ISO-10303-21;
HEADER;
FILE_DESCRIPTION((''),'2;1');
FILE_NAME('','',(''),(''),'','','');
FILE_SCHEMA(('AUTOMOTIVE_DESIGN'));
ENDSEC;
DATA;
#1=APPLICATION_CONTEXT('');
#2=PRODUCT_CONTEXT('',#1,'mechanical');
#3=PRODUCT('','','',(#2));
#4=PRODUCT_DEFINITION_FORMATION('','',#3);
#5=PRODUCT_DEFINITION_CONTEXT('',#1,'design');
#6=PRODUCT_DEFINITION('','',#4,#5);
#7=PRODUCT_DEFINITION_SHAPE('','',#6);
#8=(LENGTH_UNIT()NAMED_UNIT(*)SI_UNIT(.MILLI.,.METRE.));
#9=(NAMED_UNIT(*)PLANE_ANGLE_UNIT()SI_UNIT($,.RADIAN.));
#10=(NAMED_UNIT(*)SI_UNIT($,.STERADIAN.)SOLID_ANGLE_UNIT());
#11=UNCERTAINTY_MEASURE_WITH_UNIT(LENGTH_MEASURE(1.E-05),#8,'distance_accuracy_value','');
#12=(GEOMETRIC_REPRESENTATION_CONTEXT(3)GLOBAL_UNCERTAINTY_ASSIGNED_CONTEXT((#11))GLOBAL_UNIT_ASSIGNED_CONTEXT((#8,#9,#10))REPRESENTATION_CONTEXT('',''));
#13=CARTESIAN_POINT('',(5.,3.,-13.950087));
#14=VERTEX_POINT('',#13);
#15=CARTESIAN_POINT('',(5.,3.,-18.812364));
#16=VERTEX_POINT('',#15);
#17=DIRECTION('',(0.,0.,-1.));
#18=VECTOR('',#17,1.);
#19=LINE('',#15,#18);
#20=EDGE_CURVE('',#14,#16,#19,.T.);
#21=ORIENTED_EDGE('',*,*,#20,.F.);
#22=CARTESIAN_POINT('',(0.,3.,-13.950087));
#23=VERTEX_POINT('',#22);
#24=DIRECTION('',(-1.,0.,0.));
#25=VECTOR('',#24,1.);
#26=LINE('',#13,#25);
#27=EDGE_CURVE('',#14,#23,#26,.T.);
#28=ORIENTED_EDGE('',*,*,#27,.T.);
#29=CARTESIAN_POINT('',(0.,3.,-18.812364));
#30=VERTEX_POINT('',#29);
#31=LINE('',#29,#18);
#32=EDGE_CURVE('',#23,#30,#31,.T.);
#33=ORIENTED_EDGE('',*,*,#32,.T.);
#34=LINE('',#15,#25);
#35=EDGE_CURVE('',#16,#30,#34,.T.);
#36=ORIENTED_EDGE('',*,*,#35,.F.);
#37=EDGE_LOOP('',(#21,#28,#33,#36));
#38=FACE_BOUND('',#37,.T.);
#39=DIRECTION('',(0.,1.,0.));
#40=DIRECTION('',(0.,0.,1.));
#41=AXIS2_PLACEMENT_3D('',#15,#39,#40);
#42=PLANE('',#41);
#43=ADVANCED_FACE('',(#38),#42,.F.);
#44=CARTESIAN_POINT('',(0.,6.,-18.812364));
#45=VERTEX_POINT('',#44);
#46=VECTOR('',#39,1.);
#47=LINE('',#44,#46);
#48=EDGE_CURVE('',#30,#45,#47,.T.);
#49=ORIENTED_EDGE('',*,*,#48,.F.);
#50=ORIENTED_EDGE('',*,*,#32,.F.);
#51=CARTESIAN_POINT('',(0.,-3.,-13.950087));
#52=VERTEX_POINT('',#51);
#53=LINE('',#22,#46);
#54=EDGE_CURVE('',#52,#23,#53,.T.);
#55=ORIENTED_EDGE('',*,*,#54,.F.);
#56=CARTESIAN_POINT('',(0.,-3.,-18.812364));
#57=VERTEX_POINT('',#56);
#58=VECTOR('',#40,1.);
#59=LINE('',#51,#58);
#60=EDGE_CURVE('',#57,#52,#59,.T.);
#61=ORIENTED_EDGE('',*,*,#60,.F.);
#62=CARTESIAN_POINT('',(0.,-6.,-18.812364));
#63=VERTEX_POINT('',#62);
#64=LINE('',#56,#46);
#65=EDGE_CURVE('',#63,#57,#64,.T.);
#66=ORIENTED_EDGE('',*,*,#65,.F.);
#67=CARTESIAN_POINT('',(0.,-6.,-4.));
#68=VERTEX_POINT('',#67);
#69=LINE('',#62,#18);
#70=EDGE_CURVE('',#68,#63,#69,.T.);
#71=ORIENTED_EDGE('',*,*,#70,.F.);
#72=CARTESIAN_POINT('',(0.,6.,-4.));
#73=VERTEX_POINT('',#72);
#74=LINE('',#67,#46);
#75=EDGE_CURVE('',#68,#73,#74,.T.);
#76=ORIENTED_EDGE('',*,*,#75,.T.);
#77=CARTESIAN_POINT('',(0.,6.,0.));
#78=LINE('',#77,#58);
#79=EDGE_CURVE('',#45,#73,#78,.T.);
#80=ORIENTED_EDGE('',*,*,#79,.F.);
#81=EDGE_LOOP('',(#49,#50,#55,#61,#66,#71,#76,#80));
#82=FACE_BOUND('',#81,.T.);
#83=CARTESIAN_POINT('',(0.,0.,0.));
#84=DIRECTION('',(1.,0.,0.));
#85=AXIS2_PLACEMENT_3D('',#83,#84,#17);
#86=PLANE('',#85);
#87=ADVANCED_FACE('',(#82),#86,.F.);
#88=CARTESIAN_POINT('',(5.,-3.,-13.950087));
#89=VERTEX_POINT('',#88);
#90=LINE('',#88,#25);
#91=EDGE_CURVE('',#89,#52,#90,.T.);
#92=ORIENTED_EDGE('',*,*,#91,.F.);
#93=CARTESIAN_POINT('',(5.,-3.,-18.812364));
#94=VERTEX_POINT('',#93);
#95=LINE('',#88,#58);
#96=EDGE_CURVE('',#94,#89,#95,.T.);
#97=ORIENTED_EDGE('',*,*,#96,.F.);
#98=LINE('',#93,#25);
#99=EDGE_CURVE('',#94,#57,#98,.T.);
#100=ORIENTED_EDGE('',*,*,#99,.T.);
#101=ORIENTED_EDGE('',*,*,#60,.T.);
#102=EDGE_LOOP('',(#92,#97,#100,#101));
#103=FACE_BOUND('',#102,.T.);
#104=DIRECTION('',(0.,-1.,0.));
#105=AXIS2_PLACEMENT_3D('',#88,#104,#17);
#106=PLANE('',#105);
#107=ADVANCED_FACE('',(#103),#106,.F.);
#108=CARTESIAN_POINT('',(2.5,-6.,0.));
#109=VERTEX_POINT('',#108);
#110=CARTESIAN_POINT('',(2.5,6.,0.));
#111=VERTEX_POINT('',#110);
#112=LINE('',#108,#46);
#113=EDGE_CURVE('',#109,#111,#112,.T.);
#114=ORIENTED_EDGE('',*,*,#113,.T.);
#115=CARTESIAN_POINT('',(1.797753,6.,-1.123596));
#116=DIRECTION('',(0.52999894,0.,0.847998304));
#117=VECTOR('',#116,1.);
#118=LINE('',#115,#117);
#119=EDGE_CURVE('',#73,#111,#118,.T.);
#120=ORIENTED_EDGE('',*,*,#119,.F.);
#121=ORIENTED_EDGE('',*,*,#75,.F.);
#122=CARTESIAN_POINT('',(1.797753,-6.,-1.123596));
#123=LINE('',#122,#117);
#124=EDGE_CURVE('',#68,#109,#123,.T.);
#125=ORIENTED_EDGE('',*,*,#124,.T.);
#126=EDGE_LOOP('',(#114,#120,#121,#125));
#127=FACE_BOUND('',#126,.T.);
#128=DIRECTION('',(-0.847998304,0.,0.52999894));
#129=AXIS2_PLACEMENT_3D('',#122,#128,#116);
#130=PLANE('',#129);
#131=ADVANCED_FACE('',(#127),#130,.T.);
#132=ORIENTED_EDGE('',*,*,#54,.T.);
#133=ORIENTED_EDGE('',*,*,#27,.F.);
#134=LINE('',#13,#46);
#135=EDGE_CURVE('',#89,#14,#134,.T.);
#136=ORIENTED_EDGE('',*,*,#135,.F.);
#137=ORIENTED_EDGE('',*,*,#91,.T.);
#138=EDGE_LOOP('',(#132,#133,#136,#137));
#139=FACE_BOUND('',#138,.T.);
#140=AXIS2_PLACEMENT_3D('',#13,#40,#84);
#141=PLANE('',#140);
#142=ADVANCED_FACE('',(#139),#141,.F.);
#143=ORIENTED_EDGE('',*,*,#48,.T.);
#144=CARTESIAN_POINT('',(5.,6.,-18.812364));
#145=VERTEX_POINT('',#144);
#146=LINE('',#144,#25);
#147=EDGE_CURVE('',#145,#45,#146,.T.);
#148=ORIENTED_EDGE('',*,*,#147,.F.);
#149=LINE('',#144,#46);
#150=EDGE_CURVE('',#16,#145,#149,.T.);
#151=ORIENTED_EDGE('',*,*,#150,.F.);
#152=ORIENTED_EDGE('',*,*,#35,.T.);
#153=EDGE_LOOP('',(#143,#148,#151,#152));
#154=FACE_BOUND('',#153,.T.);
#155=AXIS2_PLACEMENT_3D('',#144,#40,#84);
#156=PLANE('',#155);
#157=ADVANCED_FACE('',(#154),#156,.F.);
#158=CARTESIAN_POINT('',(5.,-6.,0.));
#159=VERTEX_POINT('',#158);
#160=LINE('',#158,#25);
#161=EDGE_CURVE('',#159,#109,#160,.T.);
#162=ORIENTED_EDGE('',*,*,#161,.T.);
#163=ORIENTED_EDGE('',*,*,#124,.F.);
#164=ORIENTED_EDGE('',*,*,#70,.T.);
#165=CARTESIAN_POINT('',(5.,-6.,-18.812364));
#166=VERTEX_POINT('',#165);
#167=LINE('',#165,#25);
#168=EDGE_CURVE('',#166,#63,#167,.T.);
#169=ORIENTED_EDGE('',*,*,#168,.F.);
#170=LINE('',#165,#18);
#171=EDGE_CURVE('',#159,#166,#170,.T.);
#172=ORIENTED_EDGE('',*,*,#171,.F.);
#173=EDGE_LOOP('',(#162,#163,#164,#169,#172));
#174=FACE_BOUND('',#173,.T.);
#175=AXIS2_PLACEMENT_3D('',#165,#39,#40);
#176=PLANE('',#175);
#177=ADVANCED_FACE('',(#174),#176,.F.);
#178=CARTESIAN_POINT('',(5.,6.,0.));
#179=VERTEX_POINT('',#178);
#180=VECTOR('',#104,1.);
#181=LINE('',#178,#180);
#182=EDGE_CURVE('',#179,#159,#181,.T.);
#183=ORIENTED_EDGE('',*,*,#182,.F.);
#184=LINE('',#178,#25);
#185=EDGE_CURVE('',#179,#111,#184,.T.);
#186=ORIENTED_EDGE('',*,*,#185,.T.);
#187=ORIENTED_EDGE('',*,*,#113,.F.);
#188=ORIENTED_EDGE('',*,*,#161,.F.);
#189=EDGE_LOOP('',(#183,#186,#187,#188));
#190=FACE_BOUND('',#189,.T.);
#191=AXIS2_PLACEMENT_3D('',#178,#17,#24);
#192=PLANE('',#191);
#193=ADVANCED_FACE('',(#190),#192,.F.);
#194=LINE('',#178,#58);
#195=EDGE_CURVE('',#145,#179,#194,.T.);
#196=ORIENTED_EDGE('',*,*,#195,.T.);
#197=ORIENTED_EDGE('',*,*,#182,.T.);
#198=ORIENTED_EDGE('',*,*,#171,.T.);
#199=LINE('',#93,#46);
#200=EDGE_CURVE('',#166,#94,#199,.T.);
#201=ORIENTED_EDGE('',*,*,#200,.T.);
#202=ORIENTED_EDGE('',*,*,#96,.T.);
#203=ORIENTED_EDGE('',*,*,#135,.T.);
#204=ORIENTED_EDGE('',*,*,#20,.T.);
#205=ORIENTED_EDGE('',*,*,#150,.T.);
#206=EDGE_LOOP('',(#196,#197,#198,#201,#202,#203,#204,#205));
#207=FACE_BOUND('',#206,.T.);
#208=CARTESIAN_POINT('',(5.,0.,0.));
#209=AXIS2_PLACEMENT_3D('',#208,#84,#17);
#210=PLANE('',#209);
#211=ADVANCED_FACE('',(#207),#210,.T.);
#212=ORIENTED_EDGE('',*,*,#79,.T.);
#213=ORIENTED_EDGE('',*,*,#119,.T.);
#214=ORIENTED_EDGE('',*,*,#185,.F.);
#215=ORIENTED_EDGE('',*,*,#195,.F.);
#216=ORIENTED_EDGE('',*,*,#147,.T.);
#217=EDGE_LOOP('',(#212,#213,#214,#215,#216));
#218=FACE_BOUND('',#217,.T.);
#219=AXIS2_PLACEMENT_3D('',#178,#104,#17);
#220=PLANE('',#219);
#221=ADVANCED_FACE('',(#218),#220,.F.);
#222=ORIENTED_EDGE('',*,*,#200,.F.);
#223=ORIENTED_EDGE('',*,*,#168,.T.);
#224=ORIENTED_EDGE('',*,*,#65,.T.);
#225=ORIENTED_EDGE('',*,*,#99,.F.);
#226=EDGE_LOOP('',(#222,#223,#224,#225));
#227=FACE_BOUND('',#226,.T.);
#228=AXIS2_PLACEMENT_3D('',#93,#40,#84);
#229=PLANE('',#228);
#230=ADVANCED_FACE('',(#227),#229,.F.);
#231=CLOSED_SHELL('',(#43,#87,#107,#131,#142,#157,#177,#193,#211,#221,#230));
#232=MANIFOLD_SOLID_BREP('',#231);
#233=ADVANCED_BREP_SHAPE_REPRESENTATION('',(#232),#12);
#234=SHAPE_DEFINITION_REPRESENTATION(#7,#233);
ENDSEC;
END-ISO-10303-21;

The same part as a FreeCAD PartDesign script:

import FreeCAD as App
import Part
import Sketcher
from FreeCAD import Vector

doc = App.newDocument("Part")
body = doc.addObject("PartDesign::Body", "Body")

# Sketch on YZ plane
sketch1 = doc.addObject("Sketcher::SketchObject", "Sketch")
body.addObject(sketch1)
sketch1.AttachmentSupport = (doc.YZ_Plane, [""])
sketch1.MapMode = "FlatFace"
sketch1.addGeometry([
    Part.LineSegment(Vector(6, 0, 0), Vector(-6, 0, 0)),  # 0
    Part.LineSegment(Vector(-6, 0, 0), Vector(-6, -18.812364, 0)),  # 1
    Part.LineSegment(Vector(-6, -18.812364, 0), Vector(-3, -18.812364, 0)),  # 2
    Part.LineSegment(Vector(-3, -18.812364, 0), Vector(-3, -13.950087, 0)),  # 3
    Part.LineSegment(Vector(-3, -13.950087, 0), Vector(3, -13.950087, 0)),  # 4
    Part.LineSegment(Vector(3, -13.950087, 0), Vector(3, -18.812364, 0)),  # 5
    Part.LineSegment(Vector(3, -18.812364, 0), Vector(6, -18.812364, 0)),  # 6
    Part.LineSegment(Vector(6, -18.812364, 0), Vector(6, 0, 0)),  # 7
], False)
sketch1.addConstraint([
    Sketcher.Constraint("Coincident", 0, 2, 1, 1),
    Sketcher.Constraint("Coincident", 1, 2, 2, 1),
    Sketcher.Constraint("Coincident", 2, 2, 3, 1),
    Sketcher.Constraint("Coincident", 3, 2, 4, 1),
    Sketcher.Constraint("Coincident", 4, 2, 5, 1),
    Sketcher.Constraint("Coincident", 5, 2, 6, 1),
    Sketcher.Constraint("Coincident", 6, 2, 7, 1),
    Sketcher.Constraint("Coincident", 7, 2, 0, 1),
    Sketcher.Constraint("Horizontal", 0),
    Sketcher.Constraint("Vertical", 1),
    Sketcher.Constraint("Horizontal", 2),
    Sketcher.Constraint("Vertical", 3),
    Sketcher.Constraint("Horizontal", 4),
    Sketcher.Constraint("Vertical", 5),
    Sketcher.Constraint("Horizontal", 6),
    Sketcher.Constraint("Vertical", 7),
    Sketcher.Constraint("Symmetric", 0, 2, 7, 2, -1, 1),
    Sketcher.Constraint("Symmetric", 2, 2, 5, 2, -2),
    Sketcher.Constraint("DistanceX", 0, 2, 0, 1, 12.0),
    Sketcher.Constraint("DistanceX", 2, 1, 2, 2, 3.0),
    Sketcher.Constraint("DistanceY", 1, 2, 1, 1, 18.812364),
    Sketcher.Constraint("DistanceY", 3, 1, 3, 2, 4.862277),
])
pad1 = doc.addObject("PartDesign::Pad", "Pad")
body.addObject(pad1)
pad1.Profile = sketch1
pad1.Length = 5

# Sketch on XZ plane
sketch2 = doc.addObject("Sketcher::SketchObject", "Sketch001")
body.addObject(sketch2)
sketch2.AttachmentSupport = (doc.XZ_Plane, [""])
sketch2.MapMode = "FlatFace"
sketch2.AttachmentOffset = App.Placement(Vector(0, 0, -6), App.Rotation())
sketch2.addGeometry([
    Part.LineSegment(Vector(0, -4, 0), Vector(0, 0, 0)),
    Part.LineSegment(Vector(0, 0, 0), Vector(2.5, 0, 0)),
    Part.LineSegment(Vector(2.5, 0, 0), Vector(0, -4, 0)),
], False)
sketch2.addConstraint([
    Sketcher.Constraint("Coincident", 0, 2, 1, 1),
    Sketcher.Constraint("Coincident", 1, 2, 2, 1),
    Sketcher.Constraint("Coincident", 2, 2, 0, 1),
    Sketcher.Constraint("Vertical", 0),
    Sketcher.Constraint("Horizontal", 1),
    Sketcher.Constraint("Coincident", 0, 2, -1, 1),
    Sketcher.Constraint("DistanceY", 0, 1, 0, 2, 4.0),
    Sketcher.Constraint("DistanceX", 1, 1, 1, 2, 2.5),
])
pocket1 = doc.addObject("PartDesign::Pocket", "Pocket")
body.addObject(pocket1)
pocket1.Profile = sketch2
pocket1.Type = "ThroughAll"
pocket1.Reversed = True

doc.recompute()
